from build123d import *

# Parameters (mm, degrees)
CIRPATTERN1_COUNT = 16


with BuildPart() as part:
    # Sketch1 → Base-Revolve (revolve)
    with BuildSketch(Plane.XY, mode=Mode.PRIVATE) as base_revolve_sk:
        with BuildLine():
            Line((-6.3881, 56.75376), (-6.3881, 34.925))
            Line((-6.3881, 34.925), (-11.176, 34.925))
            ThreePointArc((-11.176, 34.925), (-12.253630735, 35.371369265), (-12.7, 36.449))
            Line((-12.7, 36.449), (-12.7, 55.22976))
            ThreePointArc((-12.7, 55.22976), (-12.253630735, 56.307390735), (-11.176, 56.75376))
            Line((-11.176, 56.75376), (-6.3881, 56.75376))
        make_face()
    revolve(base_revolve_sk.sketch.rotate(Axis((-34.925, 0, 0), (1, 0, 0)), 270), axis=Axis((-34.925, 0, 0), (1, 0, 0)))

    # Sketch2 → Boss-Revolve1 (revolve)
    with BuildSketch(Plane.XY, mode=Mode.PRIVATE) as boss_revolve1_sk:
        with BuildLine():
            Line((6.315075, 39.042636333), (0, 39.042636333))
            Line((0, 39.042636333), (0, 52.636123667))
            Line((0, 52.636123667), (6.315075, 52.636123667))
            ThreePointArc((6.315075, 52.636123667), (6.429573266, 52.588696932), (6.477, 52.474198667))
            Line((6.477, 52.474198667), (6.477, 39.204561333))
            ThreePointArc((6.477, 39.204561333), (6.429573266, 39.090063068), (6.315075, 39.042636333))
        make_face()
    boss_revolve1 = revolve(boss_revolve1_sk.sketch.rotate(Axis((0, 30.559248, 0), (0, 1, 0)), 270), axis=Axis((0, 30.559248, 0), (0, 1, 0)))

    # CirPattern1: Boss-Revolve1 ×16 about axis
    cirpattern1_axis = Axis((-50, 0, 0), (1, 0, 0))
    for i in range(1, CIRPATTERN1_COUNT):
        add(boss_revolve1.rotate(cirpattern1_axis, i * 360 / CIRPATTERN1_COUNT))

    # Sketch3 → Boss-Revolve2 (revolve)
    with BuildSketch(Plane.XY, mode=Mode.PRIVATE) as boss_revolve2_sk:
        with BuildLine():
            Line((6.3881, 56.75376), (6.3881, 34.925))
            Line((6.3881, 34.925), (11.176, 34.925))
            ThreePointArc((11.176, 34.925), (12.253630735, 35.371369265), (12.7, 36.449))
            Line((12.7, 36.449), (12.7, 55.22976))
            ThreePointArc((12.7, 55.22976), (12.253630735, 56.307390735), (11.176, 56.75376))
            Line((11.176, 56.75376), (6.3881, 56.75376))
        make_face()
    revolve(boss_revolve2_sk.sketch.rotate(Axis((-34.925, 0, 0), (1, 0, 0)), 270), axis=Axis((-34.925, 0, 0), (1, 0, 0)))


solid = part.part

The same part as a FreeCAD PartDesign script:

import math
import FreeCAD as App
import Part
import Sketcher
Q = App.Units.Quantity

doc = App.newDocument("Part")
params = doc.addObject("Spreadsheet::Sheet", "Params")
for row, (alias, value) in enumerate([
    ("sketch1_radius", "0.06 in"),
    ("revolution_angle", "360 deg"),
    ("revolution2_angle", "360 deg"),
    ("sketch3_radius", "0.06 in"),
    ("revolution3_angle", "360 deg"),
], start=1):
    params.set(f"A{row}", alias)
    params.set(f"B{row}", "=" + value)
    params.setAlias(f"B{row}", alias)

body = doc.addObject("PartDesign::Body", "Body")

sketch1 = body.newObject("Sketcher::SketchObject", "Sketch")
sketch1.AttachmentSupport = (doc.getObject("XY_Plane"), [""])
sketch1.MapMode = "FlatFace"
sketch1.addGeometry([
    Part.LineSegment(App.Vector(-6.4, 34.9, 0), App.Vector(-6.4, 56.8, 0)),
    Part.LineSegment(App.Vector(-6.4, 56.8, 0), App.Vector(-11.2, 56.8, 0)),
    Part.ArcOfCircle(Part.Circle(App.Vector(-11.2, 55.2, 0), App.Vector(0, 0, 1), 1.5), math.radians(90), math.radians(180)),
    Part.LineSegment(App.Vector(-12.7, 55.2, 0), App.Vector(-12.7, 36.4, 0)),
    Part.ArcOfCircle(Part.Circle(App.Vector(-11.2, 36.4, 0), App.Vector(0, 0, 1), 1.5), math.radians(180), math.radians(270)),
    Part.LineSegment(App.Vector(-11.2, 34.9, 0), App.Vector(-6.4, 34.9, 0)),
], False)
sketch1.addConstraint([
    Sketcher.Constraint("Coincident", 0, 2, 1, 1),
    Sketcher.Constraint("Tangent", 1, 2, 2, 1),
    Sketcher.Constraint("Tangent", 2, 2, 3, 1),
    Sketcher.Constraint("Tangent", 3, 2, 4, 1),
    Sketcher.Constraint("Tangent", 4, 2, 5, 1),
    Sketcher.Constraint("Coincident", 5, 2, 0, 1),
    Sketcher.Constraint("Vertical", 0),
    Sketcher.Constraint("Horizontal", 1),
    Sketcher.Constraint("Vertical", 3),
    Sketcher.Constraint("Horizontal", 5),
    Sketcher.Constraint("Equal", 2, 4),
    Sketcher.Constraint("Radius", 2, Q("0.06 in")),
    Sketcher.Constraint("DistanceX", 2, 2, -1, 1, Q("0.5 in")),
    Sketcher.Constraint("DistanceX", 1, 2, 1, 1, Q("0.1885 in")),
    Sketcher.Constraint("DistanceY", 0, 1, 0, 2, Q("0.8594 in")),
    Sketcher.Constraint("DistanceY", -1, 1, 4, 3, Q("1.435 in")),
])
sketch1.setExpression("Constraints[11]", "Params.sketch1_radius")
revolution = body.newObject("PartDesign::Revolution", "Revolution")
revolution.Profile = sketch1
revolution.ReferenceAxis = (sketch1, ["H_Axis"])
revolution.setExpression("Angle", "Params.revolution_angle")

sketch2 = body.newObject("Sketcher::SketchObject", "Sketch001")
sketch2.AttachmentSupport = (doc.getObject("XY_Plane"), [""])
sketch2.MapMode = "FlatFace"
sketch2.addGeometry([
    Part.LineSegment(App.Vector(0, 39.04, 0), App.Vector(6.32, 39.04, 0)),
    Part.ArcOfCircle(Part.Circle(App.Vector(6.32, 39.2, 0), App.Vector(0, 0, 1), 0.16), math.radians(-90), math.radians(0)),
    Part.LineSegment(App.Vector(6.48, 39.2, 0), App.Vector(6.48, 52.47, 0)),
    Part.ArcOfCircle(Part.Circle(App.Vector(6.32, 52.47, 0), App.Vector(0, 0, 1), 0.16), math.radians(0), math.radians(90)),
    Part.LineSegment(App.Vector(6.32, 52.64, 0), App.Vector(0, 52.64, 0)),
    Part.LineSegment(App.Vector(0, 52.64, 0), App.Vector(0, 39.04, 0)),
], False)
sketch2.addConstraint([
    Sketcher.Constraint("Tangent", 0, 2, 1, 1),
    Sketcher.Constraint("Tangent", 1, 2, 2, 1),
    Sketcher.Constraint("Tangent", 2, 2, 3, 1),
    Sketcher.Constraint("Tangent", 3, 2, 4, 1),
    Sketcher.Constraint("Coincident", 4, 2, 5, 1),
    Sketcher.Constraint("Coincident", 5, 2, 0, 1),
    Sketcher.Constraint("Horizontal", 0),
    Sketcher.Constraint("Vertical", 2),
    Sketcher.Constraint("Horizontal", 4),
    Sketcher.Constraint("Vertical", 5),
    Sketcher.Constraint("Equal", 1, 3),
    Sketcher.Constraint("PointOnObject", 4, 2, -2),
    Sketcher.Constraint("DistanceX", -1, 1, 1, 2, Q("0.255 in")),
    Sketcher.Constraint("Radius", 1, 0.161925),
    Sketcher.Constraint("DistanceY", -1, 1, 3, 3, 52.474199),
    Sketcher.Constraint("DistanceY", 2, 1, 2, 2, 13.269637),
])
revolution2 = body.newObject("PartDesign::Revolution", "Revolution001")
revolution2.Profile = sketch2
revolution2.ReferenceAxis = (sketch2, ["V_Axis"])
revolution2.setExpression("Angle", "Params.revolution2_angle")
doc.recompute()

polarpattern = body.newObject("PartDesign::PolarPattern", "PolarPattern")
polarpattern.Originals = [revolution2]
polarpattern.Axis = (doc.getObject("X_Axis"), [""])
polarpattern.Angle = 360
polarpattern.Occurrences = 16
body.Tip = polarpattern

sketch3 = body.newObject("Sketcher::SketchObject", "Sketch002")
sketch3.AttachmentSupport = (doc.getObject("XY_Plane"), [""])
sketch3.MapMode = "FlatFace"
sketch3.addGeometry([
    Part.LineSegment(App.Vector(6.4, 56.8, 0), App.Vector(6.4, 34.9, 0)),
    Part.LineSegment(App.Vector(6.4, 34.9, 0), App.Vector(11.2, 34.9, 0)),
    Part.ArcOfCircle(Part.Circle(App.Vector(11.2, 36.4, 0), App.Vector(0, 0, 1), 1.5), math.radians(-90), math.radians(0)),
    Part.LineSegment(App.Vector(12.7, 36.4, 0), App.Vector(12.7, 55.2, 0)),
    Part.ArcOfCircle(Part.Circle(App.Vector(11.2, 55.2, 0), App.Vector(0, 0, 1), 1.5), math.radians(0), math.radians(90)),
    Part.LineSegment(App.Vector(11.2, 56.8, 0), App.Vector(6.4, 56.8, 0)),
], False)
sketch3.addConstraint([
    Sketcher.Constraint("Coincident", 0, 2, 1, 1),
    Sketcher.Constraint("Tangent", 1, 2, 2, 1),
    Sketcher.Constraint("Tangent", 2, 2, 3, 1),
    Sketcher.Constraint("Tangent", 3, 2, 4, 1),
    Sketcher.Constraint("Tangent", 4, 2, 5, 1),
    Sketcher.Constraint("Coincident", 5, 2, 0, 1),
    Sketcher.Constraint("Vertical", 0),
    Sketcher.Constraint("Horizontal", 1),
    Sketcher.Constraint("Vertical", 3),
    Sketcher.Constraint("Horizontal", 5),
    Sketcher.Constraint("Equal", 2, 4),
    Sketcher.Constraint("Radius", 2, Q("0.06 in")),
    Sketcher.Constraint("DistanceX", -1, 1, 2, 2, Q("0.5 in")),
    Sketcher.Constraint("DistanceX", 1, 1, 1, 2, Q("0.1885 in")),
    Sketcher.Constraint("DistanceY", 0, 2, 0, 1, Q("0.8594 in")),
    Sketcher.Constraint("DistanceY", -1, 1, 2, 3, Q("1.435 in")),
])
sketch3.setExpression("Constraints[11]", "Params.sketch3_radius")
revolution3 = body.newObject("PartDesign::Revolution", "Revolution002")
revolution3.Profile = sketch3
revolution3.ReferenceAxis = (sketch3, ["H_Axis"])
revolution3.setExpression("Angle", "Params.revolution3_angle")

doc.recompute()
